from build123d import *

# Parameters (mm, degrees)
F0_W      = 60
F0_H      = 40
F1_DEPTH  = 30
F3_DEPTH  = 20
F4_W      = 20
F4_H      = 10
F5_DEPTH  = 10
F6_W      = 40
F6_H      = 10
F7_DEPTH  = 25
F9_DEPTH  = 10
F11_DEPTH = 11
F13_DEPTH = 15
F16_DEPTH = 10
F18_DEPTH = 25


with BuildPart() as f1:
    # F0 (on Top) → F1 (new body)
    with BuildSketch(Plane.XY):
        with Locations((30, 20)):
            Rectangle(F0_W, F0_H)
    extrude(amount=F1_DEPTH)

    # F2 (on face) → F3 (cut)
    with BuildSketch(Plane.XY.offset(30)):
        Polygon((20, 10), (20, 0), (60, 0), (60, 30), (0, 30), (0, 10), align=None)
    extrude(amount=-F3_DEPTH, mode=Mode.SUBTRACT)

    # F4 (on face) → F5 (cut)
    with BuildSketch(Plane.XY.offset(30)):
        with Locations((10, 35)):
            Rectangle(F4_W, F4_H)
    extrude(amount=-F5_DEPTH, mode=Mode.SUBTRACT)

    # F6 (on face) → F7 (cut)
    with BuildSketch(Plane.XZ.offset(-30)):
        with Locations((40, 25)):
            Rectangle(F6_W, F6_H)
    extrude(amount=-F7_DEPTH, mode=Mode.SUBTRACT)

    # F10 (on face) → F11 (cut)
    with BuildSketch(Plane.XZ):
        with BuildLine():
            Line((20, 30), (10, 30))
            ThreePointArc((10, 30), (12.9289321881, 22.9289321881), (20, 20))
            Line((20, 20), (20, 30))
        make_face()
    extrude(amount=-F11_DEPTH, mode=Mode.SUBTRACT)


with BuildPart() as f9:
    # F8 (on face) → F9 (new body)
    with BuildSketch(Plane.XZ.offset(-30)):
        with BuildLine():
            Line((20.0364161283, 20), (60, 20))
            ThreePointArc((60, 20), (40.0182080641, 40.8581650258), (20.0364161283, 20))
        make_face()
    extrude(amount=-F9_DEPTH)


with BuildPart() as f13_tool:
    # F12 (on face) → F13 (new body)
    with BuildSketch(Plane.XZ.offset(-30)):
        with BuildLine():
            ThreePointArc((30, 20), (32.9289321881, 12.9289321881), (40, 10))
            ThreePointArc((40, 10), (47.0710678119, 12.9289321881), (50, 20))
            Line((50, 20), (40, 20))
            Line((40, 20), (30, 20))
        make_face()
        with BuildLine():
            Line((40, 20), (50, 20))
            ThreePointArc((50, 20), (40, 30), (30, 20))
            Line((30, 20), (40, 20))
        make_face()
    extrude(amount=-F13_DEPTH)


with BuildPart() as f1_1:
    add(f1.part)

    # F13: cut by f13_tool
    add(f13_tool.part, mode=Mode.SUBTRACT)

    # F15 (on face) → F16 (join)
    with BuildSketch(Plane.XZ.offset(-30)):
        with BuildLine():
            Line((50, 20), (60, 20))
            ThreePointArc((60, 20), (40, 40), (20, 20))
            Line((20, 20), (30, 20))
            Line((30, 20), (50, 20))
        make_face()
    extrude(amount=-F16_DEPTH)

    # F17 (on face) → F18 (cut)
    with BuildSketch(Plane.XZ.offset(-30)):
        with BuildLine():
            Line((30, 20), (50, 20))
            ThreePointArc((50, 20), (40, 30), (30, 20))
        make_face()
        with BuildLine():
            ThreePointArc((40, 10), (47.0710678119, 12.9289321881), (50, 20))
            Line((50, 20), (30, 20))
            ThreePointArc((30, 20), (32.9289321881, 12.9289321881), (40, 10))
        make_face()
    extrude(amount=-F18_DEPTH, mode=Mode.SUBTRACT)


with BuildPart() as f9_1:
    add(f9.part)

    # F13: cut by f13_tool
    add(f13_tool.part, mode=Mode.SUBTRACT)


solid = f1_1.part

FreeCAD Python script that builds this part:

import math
import FreeCAD as App
import Part
import Sketcher

V = App.Vector


def add_polygon(sketch, points):
    """Adds a closed chain of lines whose ends are joined by coincident constraints."""
    first, n = sketch.GeometryCount, len(points)
    for a, b in zip(points, points[1:] + points[:1]):
        sketch.addGeometry(Part.LineSegment(App.Vector(*a, 0), App.Vector(*b, 0)), False)
    for i in range(n):
        sketch.addConstraint(Sketcher.Constraint("Coincident", first + i, 2, first + (i + 1) % n, 1))

doc = App.newDocument("Part")
body = doc.addObject("PartDesign::Body", "Body")

# Sketch on XY plane
sketch1 = doc.addObject("Sketcher::SketchObject", "Sketch")
body.addObject(sketch1)
sketch1.AttachmentSupport = (doc.XY_Plane, [""])
sketch1.MapMode = "FlatFace"
add_polygon(sketch1, [(0, 40), (0, 0), (60, 0), (60, 40)])  # lines 0-3
sketch1.addConstraint([
    Sketcher.Constraint("Vertical", 0),
    Sketcher.Constraint("Horizontal", 1),
    Sketcher.Constraint("Vertical", 2),
    Sketcher.Constraint("Horizontal", 3),
    Sketcher.Constraint("Coincident", 0, 2, -1, 1),
    Sketcher.Constraint("DistanceX", 1, 1, 1, 2, 60.0),
    Sketcher.Constraint("DistanceY", 0, 2, 0, 1, 40.0),
])
pad1 = doc.addObject("PartDesign::Pad", "Pad")
body.addObject(pad1)
pad1.Profile = sketch1
pad1.Length = 30

# Sketch on XY plane
sketch2 = doc.addObject("Sketcher::SketchObject", "Sketch001")
body.addObject(sketch2)
sketch2.AttachmentSupport = (doc.XY_Plane, [""])
sketch2.MapMode = "FlatFace"
sketch2.AttachmentOffset = App.Placement(V(0, 0, 30), App.Rotation())
add_polygon(sketch2, [(20, 10), (20, 0), (60, 0), (60, 30), (0, 30), (0, 10)])  # lines 0-5
sketch2.addConstraint([
    Sketcher.Constraint("Vertical", 0),
    Sketcher.Constraint("Horizontal", 1),
    Sketcher.Constraint("Vertical", 2),
    Sketcher.Constraint("Horizontal", 3),
    Sketcher.Constraint("Vertical", 4),
    Sketcher.Constraint("Horizontal", 5),
    Sketcher.Constraint("PointOnObject", 0, 2, -1),
    Sketcher.Constraint("PointOnObject", 3, 2, -2),
    Sketcher.Constraint("Equal", 5, 4),
    Sketcher.Constraint("DistanceX", 1, 1, 1, 2, 40.0),
    Sketcher.Constraint("DistanceX", 3, 2, 3, 1, 60.0),
    Sketcher.Constraint("DistanceY", 0, 2, 0, 1, 10.0),
])
pocket1 = doc.addObject("PartDesign::Pocket", "Pocket")
body.addObject(pocket1)
pocket1.Profile = sketch2
pocket1.Length = 20

# Sketch on XY plane
sketch3 = doc.addObject("Sketcher::SketchObject", "Sketch002")
body.addObject(sketch3)
sketch3.AttachmentSupport = (doc.XY_Plane, [""])
sketch3.MapMode = "FlatFace"
sketch3.AttachmentOffset = App.Placement(V(0, 0, 30), App.Rotation())
add_polygon(sketch3, [(0, 40), (0, 30), (20, 30), (20, 40)])  # lines 0-3
sketch3.addConstraint([
    Sketcher.Constraint("Vertical", 0),
    Sketcher.Constraint("Horizontal", 1),
    Sketcher.Constraint("Vertical", 2),
    Sketcher.Constraint("Horizontal", 3),
    Sketcher.Constraint("PointOnObject", 0, 2, -2),
    Sketcher.Constraint("DistanceX", 1, 1, 1, 2, 20.0),
    Sketcher.Constraint("DistanceY", 0, 2, 0, 1, 10.0),
    Sketcher.Constraint("DistanceY", -1, 1, 0, 2, 30.0),
])
pocket2 = doc.addObject("PartDesign::Pocket", "Pocket001")
body.addObject(pocket2)
pocket2.Profile = sketch3
pocket2.Length = 10

# Sketch on XZ plane
sketch4 = doc.addObject("Sketcher::SketchObject", "Sketch003")
body.addObject(sketch4)
sketch4.AttachmentSupport = (doc.XZ_Plane, [""])
sketch4.MapMode = "FlatFace"
sketch4.AttachmentOffset = App.Placement(V(0, 0, -30), App.Rotation())
add_polygon(sketch4, [(20, 30), (20, 20), (60, 20), (60, 30)])  # lines 0-3
sketch4.addConstraint([
    Sketcher.Constraint("Vertical", 0),
    Sketcher.Constraint("Horizontal", 1),
    Sketcher.Constraint("Vertical", 2),
    Sketcher.Constraint("Horizontal", 3),
    Sketcher.Constraint("DistanceX", 1, 1, 1, 2, 40.0),
    Sketcher.Constraint("DistanceY", 0, 2, 0, 1, 10.0),
    Sketcher.Constraint("DistanceX", -1, 1, 0, 2, 20.0),
    Sketcher.Constraint("DistanceY", -1, 1, 0, 2, 20.0),
])
pocket3 = doc.addObject("PartDesign::Pocket", "Pocket002")
body.addObject(pocket3)
pocket3.Profile = sketch4
pocket3.Length = 25

# Sketch on XZ plane
sketch5 = doc.addObject("Sketcher::SketchObject", "Sketch004")
body.addObject(sketch5)
sketch5.AttachmentSupport = (doc.XZ_Plane, [""])
sketch5.MapMode = "FlatFace"
sketch5.addGeometry([
    Part.LineSegment(V(20, 30, 0), V(10, 30, 0)),
    Part.ArcOfCircle(Part.Circle(V(20, 30, 0), V(0, 0, 1), 10), math.radians(180), math.radians(270)),
    Part.LineSegment(V(20, 20, 0), V(20, 30, 0)),
], False)
sketch5.addConstraint([
    Sketcher.Constraint("Coincident", 0, 2, 1, 1),
    Sketcher.Constraint("Coincident", 1, 2, 2, 1),
    Sketcher.Constraint("Coincident", 2, 2, 0, 1),
    Sketcher.Constraint("Horizontal", 0),
    Sketcher.Constraint("Vertical", 2),
    Sketcher.Constraint("Coincident", 2, 2, 1, 3),
    Sketcher.Constraint("Radius", 1, 10.0),
    Sketcher.Constraint("DistanceX", -1, 1, 1, 3, 20.0),
    Sketcher.Constraint("DistanceY", -1, 1, 1, 3, 30.0),
])
pocket4 = doc.addObject("PartDesign::Pocket", "Pocket003")
body.addObject(pocket4)
pocket4.Profile = sketch5
pocket4.Length = 11
body2 = doc.addObject("PartDesign::Body", "Body001")

# Sketch on XZ plane
sketch6 = doc.addObject("Sketcher::SketchObject", "Sketch005")
body2.addObject(sketch6)
sketch6.AttachmentSupport = (doc.getObject("XZ_Plane001"), [""])
sketch6.MapMode = "FlatFace"
sketch6.AttachmentOffset = App.Placement(V(0, 0, -30), App.Rotation())
sketch6.addGeometry([
    Part.LineSegment(V(20, 20, 0), V(60, 20, 0)),
    Part.ArcOfCircle(Part.Circle(V(40, 21, 0), V(0, 0, 1), 20), math.radians(-2), math.radians(182)),
], False)
sketch6.addConstraint([
    Sketcher.Constraint("Coincident", 0, 1, 1, 2),
    Sketcher.Constraint("Coincident", 1, 1, 0, 2),
    Sketcher.Constraint("Horizontal", 0),
    Sketcher.Constraint("DistanceY", -1, 1, 0, 1, 20.0),
    Sketcher.Constraint("DistanceX", -1, 1, 1, 1, 60.0),
    Sketcher.Constraint("Radius", 1, 20.000203),
    Sketcher.Constraint("DistanceX", 0, 1, 0, 2, 39.963584),
])
pad2 = doc.addObject("PartDesign::Pad", "Pad001")
body2.addObject(pad2)
pad2.Profile = sketch6
pad2.Length = 10
pad2.Reversed = True
body3 = doc.addObject("PartDesign::Body", "Body002")

# Sketch on XZ plane
sketch7 = doc.addObject("Sketcher::SketchObject", "Sketch006")
body3.addObject(sketch7)
sketch7.AttachmentSupport = (doc.getObject("XZ_Plane002"), [""])
sketch7.MapMode = "FlatFace"
sketch7.AttachmentOffset = App.Placement(V(0, 0, -30), App.Rotation())
sketch7.addGeometry([
    Part.ArcOfCircle(Part.Circle(V(40, 20, 0), V(0, 0, 1), 10), math.radians(180), math.radians(270)),
    Part.ArcOfCircle(Part.Circle(V(40, 20, 0), V(0, 0, 1), 10), math.radians(-90), math.radians(0)),
    Part.ArcOfCircle(Part.Circle(V(40, 20, 0), V(0, 0, 1), 10), math.radians(0), math.radians(180)),
], False)
sketch7.addConstraint([
    Sketcher.Constraint("Tangent", 0, 2, 1, 1),
    Sketcher.Constraint("Tangent", 1, 2, 2, 1),
    Sketcher.Constraint("Tangent", 2, 2, 0, 1),
    Sketcher.Constraint("Horizontal", 2, 3, 1, 2),
    Sketcher.Constraint("Horizontal", 1, 2, 2, 2),
    Sketcher.Constraint("Vertical", 2, 3, 0, 2),
    Sketcher.Constraint("Radius", 0, 10.0),
    Sketcher.Constraint("DistanceX", -1, 1, 0, 3, 40.0),
    Sketcher.Constraint("DistanceY", -1, 1, 0, 3, 20.0),
])
pad3 = doc.addObject("PartDesign::Pad", "Pad002")
body3.addObject(pad3)
pad3.Profile = sketch7
pad3.Length = 15
pad3.Reversed = True
doc.recompute()

body4 = doc.addObject("PartDesign::Body", "Body003")
body4.BaseFeature = body3
boolean = doc.addObject("PartDesign::Boolean", "Boolean")
body.addObject(boolean)
boolean.Type = "Cut"
boolean.addObjects([body4])
doc.recompute()

# Sketch on XZ plane
sketch8 = doc.addObject("Sketcher::SketchObject", "Sketch007")
body.addObject(sketch8)
sketch8.AttachmentSupport = (doc.XZ_Plane, [""])
sketch8.MapMode = "FlatFace"
sketch8.AttachmentOffset = App.Placement(V(0, 0, -30), App.Rotation())
sketch8.addGeometry([
    Part.ArcOfCircle(Part.Circle(V(40, 20, 0), V(0, 0, 1), 20), math.radians(0), math.radians(180)),
    Part.LineSegment(V(20, 20, 0), V(60, 20, 0)),
], False)
sketch8.addConstraint([
    Sketcher.Constraint("Coincident", 0, 1, 1, 2),
    Sketcher.Constraint("Coincident", 1, 1, 0, 2),
    Sketcher.Constraint("Horizontal", 1),
    Sketcher.Constraint("Radius", 0, 20.0),
    Sketcher.Constraint("DistanceX", -1, 1, 0, 3, 40.0),
    Sketcher.Constraint("DistanceY", -1, 1, 0, 3, 20.0),
    Sketcher.Constraint("DistanceY", -1, 1, 0, 1, 20.0),
])
pad4 = doc.addObject("PartDesign::Pad", "Pad003")
body.addObject(pad4)
pad4.Profile = sketch8
pad4.Length = 10
pad4.Reversed = True

# Sketch on XZ plane
sketch9 = doc.addObject("Sketcher::SketchObject", "Sketch008")
body.addObject(sketch9)
sketch9.AttachmentSupport = (doc.XZ_Plane, [""])
sketch9.MapMode = "FlatFace"
sketch9.AttachmentOffset = App.Placement(V(0, 0, -30), App.Rotation())
sketch9.addGeometry([
    Part.ArcOfCircle(Part.Circle(V(40, 20, 0), V(0, 0, 1), 10), math.radians(0), math.radians(180)),
    Part.ArcOfCircle(Part.Circle(V(40, 20, 0), V(0, 0, 1), 10), math.radians(180), math.radians(270)),
    Part.ArcOfCircle(Part.Circle(V(40, 20, 0), V(0, 0, 1), 10), math.radians(-90), math.radians(0)),
], False)
sketch9.addConstraint([
    Sketcher.Constraint("Tangent", 0, 2, 1, 1),
    Sketcher.Constraint("Tangent", 1, 2, 2, 1),
    Sketcher.Constraint("Tangent", 2, 2, 0, 1),
    Sketcher.Constraint("Horizontal", 2, 3, 0, 2),
    Sketcher.Constraint("Horizontal", 0, 2, 2, 2),
    Sketcher.Constraint("Vertical", 2, 3, 1, 2),
    Sketcher.Constraint("Radius", 0, 10.0),
    Sketcher.Constraint("DistanceX", -1, 1, 0, 3, 40.0),
    Sketcher.Constraint("DistanceY", -1, 1, 0, 3, 20.0),
])
pocket5 = doc.addObject("PartDesign::Pocket", "Pocket004")
body.addObject(pocket5)
pocket5.Profile = sketch9
pocket5.Length = 25
doc.recompute()

boolean2 = doc.addObject("PartDesign::Boolean", "Boolean001")
body2.addObject(boolean2)
boolean2.Type = "Cut"
boolean2.addObjects([body3])
body2.Visibility = False

doc.recompute()
